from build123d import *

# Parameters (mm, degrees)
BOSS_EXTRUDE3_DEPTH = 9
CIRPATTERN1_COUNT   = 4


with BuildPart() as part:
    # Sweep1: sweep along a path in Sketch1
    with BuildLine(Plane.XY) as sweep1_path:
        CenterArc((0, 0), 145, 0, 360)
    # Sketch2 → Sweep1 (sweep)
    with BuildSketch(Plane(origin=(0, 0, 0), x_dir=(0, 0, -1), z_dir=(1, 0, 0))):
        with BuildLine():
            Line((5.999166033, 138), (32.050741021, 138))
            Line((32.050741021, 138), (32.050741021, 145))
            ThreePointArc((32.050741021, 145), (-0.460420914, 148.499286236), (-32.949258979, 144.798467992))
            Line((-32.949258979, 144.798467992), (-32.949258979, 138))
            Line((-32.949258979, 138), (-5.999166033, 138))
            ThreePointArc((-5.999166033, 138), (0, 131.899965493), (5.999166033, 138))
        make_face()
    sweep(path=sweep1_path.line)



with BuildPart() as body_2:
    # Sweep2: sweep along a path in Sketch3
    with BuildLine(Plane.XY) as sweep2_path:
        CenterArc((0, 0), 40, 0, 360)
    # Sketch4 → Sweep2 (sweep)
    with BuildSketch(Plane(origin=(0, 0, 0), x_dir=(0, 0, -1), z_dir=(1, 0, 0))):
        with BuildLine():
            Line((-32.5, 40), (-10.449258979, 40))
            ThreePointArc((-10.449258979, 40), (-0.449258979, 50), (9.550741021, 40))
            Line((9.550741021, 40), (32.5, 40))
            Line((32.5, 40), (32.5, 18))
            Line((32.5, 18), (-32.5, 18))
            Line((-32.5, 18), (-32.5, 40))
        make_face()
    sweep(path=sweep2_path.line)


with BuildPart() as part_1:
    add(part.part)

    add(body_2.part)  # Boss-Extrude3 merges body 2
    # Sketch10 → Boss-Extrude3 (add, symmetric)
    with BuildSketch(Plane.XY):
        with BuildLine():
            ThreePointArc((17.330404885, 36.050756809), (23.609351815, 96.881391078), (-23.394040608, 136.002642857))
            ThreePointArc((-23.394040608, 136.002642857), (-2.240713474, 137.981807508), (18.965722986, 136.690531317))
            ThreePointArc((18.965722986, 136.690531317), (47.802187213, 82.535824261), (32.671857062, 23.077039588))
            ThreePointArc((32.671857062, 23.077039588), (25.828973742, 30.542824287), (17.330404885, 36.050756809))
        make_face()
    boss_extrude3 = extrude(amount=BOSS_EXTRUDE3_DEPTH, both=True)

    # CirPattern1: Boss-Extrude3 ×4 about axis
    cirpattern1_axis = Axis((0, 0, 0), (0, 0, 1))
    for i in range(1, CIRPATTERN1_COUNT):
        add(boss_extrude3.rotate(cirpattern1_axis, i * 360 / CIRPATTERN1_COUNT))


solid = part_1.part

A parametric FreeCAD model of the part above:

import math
import FreeCAD as App
import Part
import Sketcher
from FreeCAD import Vector

doc = App.newDocument("Part")
body = doc.addObject("PartDesign::Body", "Body")

sketch1 = doc.addObject("Sketcher::SketchObject", "Sketch")
body.addObject(sketch1)
sketch1.AttachmentSupport = (doc.YZ_Plane, [""])
sketch1.MapMode = "FlatFace"
sketch1.addGeometry([
    Part.LineSegment(Vector(138, -6, 0), Vector(138, -32, 0)),
    Part.LineSegment(Vector(138, -32, 0), Vector(145, -32, 0)),
    Part.ArcOfCircle(Part.Circle(Vector(0, 0, 0), Vector(0, 0, 1), 149), math.radians(-12), math.radians(13)),
    Part.LineSegment(Vector(145, 33, 0), Vector(138, 33, 0)),
    Part.LineSegment(Vector(138, 33, 0), Vector(138, 6, 0)),
    Part.ArcOfCircle(Part.Circle(Vector(138, 0, 0), Vector(0, 0, 1), 6), math.radians(89), math.radians(271)),
], False)
sketch1.addConstraint([
    Sketcher.Constraint("Coincident", 0, 2, 1, 1),
    Sketcher.Constraint("Coincident", 1, 2, 2, 1),
    Sketcher.Constraint("Coincident", 2, 2, 3, 1),
    Sketcher.Constraint("Coincident", 3, 2, 4, 1),
    Sketcher.Constraint("Coincident", 4, 2, 5, 1),
    Sketcher.Constraint("Coincident", 5, 2, 0, 1),
    Sketcher.Constraint("Vertical", 0),
    Sketcher.Constraint("Horizontal", 1),
    Sketcher.Constraint("Horizontal", 3),
    Sketcher.Constraint("Vertical", 4),
    Sketcher.Constraint("Coincident", 2, 3, -1, 1),
    Sketcher.Constraint("Symmetric", 4, 2, 5, 2, -1),
    Sketcher.Constraint("Radius", 5, 6.0),
    Sketcher.Constraint("Radius", 2, 148.5),
    Sketcher.Constraint("DistanceX", 1, 1, 1, 2, 7.0),
    Sketcher.Constraint("DistanceX", -1, 1, 0, 2, 138.0),
    Sketcher.Constraint("DistanceY", 1, 2, 2, 2, 65.0),
    Sketcher.Constraint("DistanceY", 0, 2, 0, 1, 26.051575),
])

sketch2 = doc.addObject("Sketcher::SketchObject", "Sketch001")
body.addObject(sketch2)
sketch2.AttachmentSupport = (doc.XY_Plane, [""])
sketch2.MapMode = "FlatFace"
sketch2.addGeometry(Part.Circle(Vector(0, 0, 0), Vector(0, 0, 1), 145), False)
sketch2.addConstraint([
    Sketcher.Constraint("Coincident", 0, 3, -1, 1),
    Sketcher.Constraint("Diameter", 0, 290.0),
])
doc.recompute()

additivepipe = doc.addObject("PartDesign::AdditivePipe", "AdditivePipe")
body.addObject(additivepipe)
additivepipe.Profile = sketch1
additivepipe.Spine = (sketch2, ["Edge1"])
body2 = doc.addObject("PartDesign::Body", "Body001")

sketch3 = doc.addObject("Sketcher::SketchObject", "Sketch002")
body2.addObject(sketch3)
sketch3.AttachmentSupport = (doc.getObject("YZ_Plane001"), [""])
sketch3.MapMode = "FlatFace"
sketch3.addGeometry([
    Part.LineSegment(Vector(40, 10, 0), Vector(40, 32, 0)),
    Part.LineSegment(Vector(40, 32, 0), Vector(18, 32, 0)),
    Part.LineSegment(Vector(18, 32, 0), Vector(18, -32, 0)),
    Part.LineSegment(Vector(18, -32, 0), Vector(40, -32, 0)),
    Part.LineSegment(Vector(40, -32, 0), Vector(40, -10, 0)),
    Part.ArcOfCircle(Part.Circle(Vector(40, 0, 0), Vector(0, 0, 1), 10), math.radians(-90), math.radians(90)),
], False)
sketch3.addConstraint([
    Sketcher.Constraint("Coincident", 0, 2, 1, 1),
    Sketcher.Constraint("Coincident", 1, 2, 2, 1),
    Sketcher.Constraint("Coincident", 2, 2, 3, 1),
    Sketcher.Constraint("Coincident", 3, 2, 4, 1),
    Sketcher.Constraint("Coincident", 4, 2, 5, 1),
    Sketcher.Constraint("Coincident", 5, 2, 0, 1),
    Sketcher.Constraint("Vertical", 0),
    Sketcher.Constraint("Horizontal", 1),
    Sketcher.Constraint("Vertical", 2),
    Sketcher.Constraint("Horizontal", 3),
    Sketcher.Constraint("Vertical", 4),
    Sketcher.Constraint("Symmetric", 0, 2, 3, 2, -1),
    Sketcher.Constraint("Vertical", 5, 3, 0, 2),
    Sketcher.Constraint("Radius", 5, 10.0),
    Sketcher.Constraint("DistanceX", 1, 2, 1, 1, 22.0),
    Sketcher.Constraint("DistanceY", 2, 2, 2, 1, 65.0),
    Sketcher.Constraint("DistanceX", -1, 1, 5, 3, 40.0),
    Sketcher.Constraint("DistanceY", 0, 1, 0, 2, 22.050741),
])

sketch4 = doc.addObject("Sketcher::SketchObject", "Sketch003")
body2.addObject(sketch4)
sketch4.AttachmentSupport = (doc.getObject("XY_Plane001"), [""])
sketch4.MapMode = "FlatFace"
sketch4.addGeometry(Part.Circle(Vector(0, 0, 0), Vector(0, 0, 1), 40), False)
sketch4.addConstraint([
    Sketcher.Constraint("Coincident", 0, 3, -1, 1),
    Sketcher.Constraint("Diameter", 0, 80.0),
])
doc.recompute()

additivepipe2 = doc.addObject("PartDesign::AdditivePipe", "AdditivePipe001")
body2.addObject(additivepipe2)
additivepipe2.Profile = sketch3
additivepipe2.Spine = (sketch4, ["Edge1"])
body.AllowCompound = True
doc.recompute()

boolean = doc.addObject("PartDesign::Boolean", "Boolean")
body.addObject(boolean)
boolean.Type = "Fuse"
boolean.addObjects([body2])

sketch5 = doc.addObject("Sketcher::SketchObject", "Sketch004")
body.addObject(sketch5)
sketch5.AttachmentSupport = (doc.XY_Plane, [""])
sketch5.MapMode = "FlatFace"
sketch5.addGeometry([
    Part.ArcOfCircle(Part.Circle(Vector(-37, 72, 0), Vector(0, 0, 1), 65), math.radians(-34), math.radians(78)),
    Part.ArcOfCircle(Part.Circle(Vector(0, 0, 0), Vector(0, 0, 1), 40), math.radians(35), math.radians(64)),
    Part.ArcOfCircle(Part.Circle(Vector(-37, 72, 0), Vector(0, 0, 1), 85), math.radians(-35), math.radians(49)),
    Part.ArcOfCircle(Part.Circle(Vector(0, 0, 0), Vector(0, 0, 1), 138), math.radians(82.1), math.radians(99.76)),
], False)
sketch5.addConstraint([
    Sketcher.Constraint("Coincident", 0, 1, 1, 2),
    Sketcher.Constraint("Coincident", 1, 1, 2, 1),
    Sketcher.Constraint("Coincident", 2, 2, 3, 1),
    Sketcher.Constraint("Coincident", 3, 2, 0, 2),
    Sketcher.Constraint("Coincident", 1, 3, -1, 1),
    Sketcher.Constraint("Coincident", 3, 3, -1, 1),
    Sketcher.Constraint("Coincident", 2, 3, 0, 3),
    Sketcher.Constraint("Radius", 0, 65.0),
    Sketcher.Constraint("Radius", 1, 40.0),
    Sketcher.Constraint("Radius", 2, 85.0),
    Sketcher.Constraint("Radius", 3, 138.0),
    Sketcher.Constraint("DistanceY", -1, 1, 1, 1, 23.07704),
    Sketcher.Constraint("DistanceY", -1, 1, 2, 2, 136.690531),
])
pad1 = doc.addObject("PartDesign::Pad", "Pad")
body.addObject(pad1)
pad1.Profile = sketch5
pad1.Length = 18
pad1.Midplane = True
doc.recompute()

polarpattern = doc.addObject("PartDesign::PolarPattern", "PolarPattern")
body.addObject(polarpattern)
polarpattern.Originals = [pad1]
polarpattern.Axis = (doc.Z_Axis, [""])
polarpattern.Angle = 360
polarpattern.Occurrences = 4
body.Tip = polarpattern

doc.recompute()
